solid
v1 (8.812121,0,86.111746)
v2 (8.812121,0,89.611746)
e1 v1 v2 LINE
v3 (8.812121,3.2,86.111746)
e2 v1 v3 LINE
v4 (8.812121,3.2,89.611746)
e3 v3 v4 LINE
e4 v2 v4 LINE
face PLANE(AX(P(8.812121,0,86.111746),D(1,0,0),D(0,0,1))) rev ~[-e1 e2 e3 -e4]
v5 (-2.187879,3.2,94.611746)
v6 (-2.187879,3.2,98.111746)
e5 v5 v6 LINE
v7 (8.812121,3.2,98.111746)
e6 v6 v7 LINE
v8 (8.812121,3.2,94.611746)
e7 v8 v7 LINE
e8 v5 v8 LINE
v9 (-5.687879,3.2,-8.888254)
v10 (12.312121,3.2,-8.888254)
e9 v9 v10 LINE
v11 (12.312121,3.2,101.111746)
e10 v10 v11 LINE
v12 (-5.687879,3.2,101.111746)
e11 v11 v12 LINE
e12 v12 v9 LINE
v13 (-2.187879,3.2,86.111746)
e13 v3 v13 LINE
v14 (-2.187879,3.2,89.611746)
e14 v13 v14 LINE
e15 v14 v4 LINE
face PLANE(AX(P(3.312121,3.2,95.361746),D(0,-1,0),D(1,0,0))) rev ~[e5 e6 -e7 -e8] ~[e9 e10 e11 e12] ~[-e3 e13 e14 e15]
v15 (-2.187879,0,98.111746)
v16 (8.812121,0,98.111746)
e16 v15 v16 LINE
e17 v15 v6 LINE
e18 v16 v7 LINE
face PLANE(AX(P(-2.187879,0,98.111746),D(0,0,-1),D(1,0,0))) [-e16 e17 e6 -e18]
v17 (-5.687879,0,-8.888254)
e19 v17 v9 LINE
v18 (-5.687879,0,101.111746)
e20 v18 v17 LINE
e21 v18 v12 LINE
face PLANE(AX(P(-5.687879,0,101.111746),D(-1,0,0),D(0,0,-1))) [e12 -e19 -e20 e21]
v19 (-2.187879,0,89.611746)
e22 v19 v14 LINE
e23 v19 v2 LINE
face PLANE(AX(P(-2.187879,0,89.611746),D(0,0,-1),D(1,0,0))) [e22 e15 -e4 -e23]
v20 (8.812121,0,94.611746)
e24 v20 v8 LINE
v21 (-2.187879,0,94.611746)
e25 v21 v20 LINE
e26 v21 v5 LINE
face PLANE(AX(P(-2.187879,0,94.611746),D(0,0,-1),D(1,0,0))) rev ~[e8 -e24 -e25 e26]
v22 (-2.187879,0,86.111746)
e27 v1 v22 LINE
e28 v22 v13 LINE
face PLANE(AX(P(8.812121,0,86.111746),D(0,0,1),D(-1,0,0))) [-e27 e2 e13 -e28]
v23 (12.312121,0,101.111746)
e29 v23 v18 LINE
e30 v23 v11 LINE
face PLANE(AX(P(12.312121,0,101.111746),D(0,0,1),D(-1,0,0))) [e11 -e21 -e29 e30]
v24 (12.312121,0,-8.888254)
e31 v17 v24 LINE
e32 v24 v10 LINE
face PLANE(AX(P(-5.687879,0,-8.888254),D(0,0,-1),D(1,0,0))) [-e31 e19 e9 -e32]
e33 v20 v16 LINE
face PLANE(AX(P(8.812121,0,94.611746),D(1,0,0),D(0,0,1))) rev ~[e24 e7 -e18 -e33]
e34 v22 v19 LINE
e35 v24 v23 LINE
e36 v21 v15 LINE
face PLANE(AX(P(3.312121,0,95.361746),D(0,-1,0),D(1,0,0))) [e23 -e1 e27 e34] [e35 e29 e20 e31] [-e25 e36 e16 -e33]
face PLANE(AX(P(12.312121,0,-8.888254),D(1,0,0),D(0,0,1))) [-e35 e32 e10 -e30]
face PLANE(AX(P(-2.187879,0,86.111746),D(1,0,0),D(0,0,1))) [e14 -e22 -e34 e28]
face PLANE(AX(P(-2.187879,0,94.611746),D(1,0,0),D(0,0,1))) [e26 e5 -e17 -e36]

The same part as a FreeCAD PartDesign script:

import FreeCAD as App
import Part
import Sketcher
Q = App.Units.Quantity

doc = App.newDocument("Part")
params = doc.addObject("Spreadsheet::Sheet", "Params")
for row, (alias, value) in enumerate([
    ("sketch1_width", "18 mm"),
    ("sketch1_width2", "11 mm"),
    ("sketch1_height", "110 mm"),
    ("sketch1_height2", "3.5 mm"),
    ("pad1_length", "3.2 mm"),
], start=1):
    params.set(f"A{row}", alias)
    params.set(f"B{row}", "=" + value)
    params.setAlias(f"B{row}", alias)

body = doc.addObject("PartDesign::Body", "Body")

sketch1 = body.newObject("Sketcher::SketchObject", "Sketch")
sketch1.AttachmentSupport = (doc.getObject("XZ_Plane"), [""])
sketch1.MapMode = "FlatFace"
sketch1.addGeometry([
    Part.LineSegment(App.Vector(12.3, 101.1, 0), App.Vector(-5.7, 101.1, 0)),
    Part.LineSegment(App.Vector(-5.7, 101.1, 0), App.Vector(-5.7, -8.9, 0)),
    Part.LineSegment(App.Vector(-5.7, -8.9, 0), App.Vector(12.3, -8.9, 0)),
    Part.LineSegment(App.Vector(12.3, -8.9, 0), App.Vector(12.3, 101.1, 0)),
    Part.LineSegment(App.Vector(-2.2, 89.6, 0), App.Vector(8.8, 89.6, 0)),
    Part.LineSegment(App.Vector(8.8, 89.6, 0), App.Vector(8.8, 86.1, 0)),
    Part.LineSegment(App.Vector(8.8, 86.1, 0), App.Vector(-2.2, 86.1, 0)),
    Part.LineSegment(App.Vector(-2.2, 86.1, 0), App.Vector(-2.2, 89.6, 0)),
    Part.LineSegment(App.Vector(8.8, 94.6, 0), App.Vector(-2.2, 94.6, 0)),
    Part.LineSegment(App.Vector(-2.2, 94.6, 0), App.Vector(-2.2, 98.1, 0)),
    Part.LineSegment(App.Vector(-2.2, 98.1, 0), App.Vector(8.8, 98.1, 0)),
    Part.LineSegment(App.Vector(8.8, 98.1, 0), App.Vector(8.8, 94.6, 0)),
], False)
sketch1.addConstraint([
    Sketcher.Constraint("Coincident", 0, 2, 1, 1),
    Sketcher.Constraint("Coincident", 1, 2, 2, 1),
    Sketcher.Constraint("Coincident", 2, 2, 3, 1),
    Sketcher.Constraint("Coincident", 3, 2, 0, 1),
    Sketcher.Constraint("Coincident", 4, 2, 5, 1),
    Sketcher.Constraint("Coincident", 5, 2, 6, 1),
    Sketcher.Constraint("Coincident", 6, 2, 7, 1),
    Sketcher.Constraint("Coincident", 7, 2, 4, 1),
    Sketcher.Constraint("Coincident", 8, 2, 9, 1),
    Sketcher.Constraint("Coincident", 9, 2, 10, 1),
    Sketcher.Constraint("Coincident", 10, 2, 11, 1),
    Sketcher.Constraint("Coincident", 11, 2, 8, 1),
    Sketcher.Constraint("Horizontal", 0),
    Sketcher.Constraint("Vertical", 1),
    Sketcher.Constraint("Horizontal", 2),
    Sketcher.Constraint("Vertical", 3),
    Sketcher.Constraint("Horizontal", 4),
    Sketcher.Constraint("Vertical", 5),
    Sketcher.Constraint("Horizontal", 6),
    Sketcher.Constraint("Vertical", 7),
    Sketcher.Constraint("Horizontal", 8),
    Sketcher.Constraint("Vertical", 9),
    Sketcher.Constraint("Horizontal", 10),
    Sketcher.Constraint("Vertical", 11),
    Sketcher.Constraint("Vertical", 7, 2, 8, 2),
    Sketcher.Constraint("Vertical", 5, 2, 10, 2),
    Sketcher.Constraint("Equal", 7, 9),
    Sketcher.Constraint("DistanceX", 0, 2, 0, 1, Q("18 mm")),
    Sketcher.Constraint("DistanceX", 4, 1, 4, 2, Q("11 mm")),
    Sketcher.Constraint("DistanceY", 1, 2, 1, 1, Q("110 mm")),
    Sketcher.Constraint("DistanceY", 5, 2, 5, 1, Q("3.5 mm")),
    Sketcher.Constraint("DistanceY", 5, 2, 3, 2, Q("15 mm")),
    Sketcher.Constraint("DistanceY", 7, 2, 8, 2, Q("5 mm")),
    Sketcher.Constraint("DistanceX", 4, 2, 3, 2, Q("3.5 mm")),
    Sketcher.Constraint("DistanceX", 0, 2, -1, 1, Q("5.687879 mm")),
    Sketcher.Constraint("DistanceY", -1, 1, 0, 2, Q("101.111746 mm")),
])
sketch1.setExpression("Constraints[27]", "Params.sketch1_width")
sketch1.setExpression("Constraints[28]", "Params.sketch1_width2")
sketch1.setExpression("Constraints[29]", "Params.sketch1_height")
sketch1.setExpression("Constraints[30]", "Params.sketch1_height2")
pad1 = body.newObject("PartDesign::Pad", "Pad")
pad1.Profile = sketch1
pad1.setExpression("Length", "Params.pad1_length")
pad1.Reversed = True

doc.recompute()
